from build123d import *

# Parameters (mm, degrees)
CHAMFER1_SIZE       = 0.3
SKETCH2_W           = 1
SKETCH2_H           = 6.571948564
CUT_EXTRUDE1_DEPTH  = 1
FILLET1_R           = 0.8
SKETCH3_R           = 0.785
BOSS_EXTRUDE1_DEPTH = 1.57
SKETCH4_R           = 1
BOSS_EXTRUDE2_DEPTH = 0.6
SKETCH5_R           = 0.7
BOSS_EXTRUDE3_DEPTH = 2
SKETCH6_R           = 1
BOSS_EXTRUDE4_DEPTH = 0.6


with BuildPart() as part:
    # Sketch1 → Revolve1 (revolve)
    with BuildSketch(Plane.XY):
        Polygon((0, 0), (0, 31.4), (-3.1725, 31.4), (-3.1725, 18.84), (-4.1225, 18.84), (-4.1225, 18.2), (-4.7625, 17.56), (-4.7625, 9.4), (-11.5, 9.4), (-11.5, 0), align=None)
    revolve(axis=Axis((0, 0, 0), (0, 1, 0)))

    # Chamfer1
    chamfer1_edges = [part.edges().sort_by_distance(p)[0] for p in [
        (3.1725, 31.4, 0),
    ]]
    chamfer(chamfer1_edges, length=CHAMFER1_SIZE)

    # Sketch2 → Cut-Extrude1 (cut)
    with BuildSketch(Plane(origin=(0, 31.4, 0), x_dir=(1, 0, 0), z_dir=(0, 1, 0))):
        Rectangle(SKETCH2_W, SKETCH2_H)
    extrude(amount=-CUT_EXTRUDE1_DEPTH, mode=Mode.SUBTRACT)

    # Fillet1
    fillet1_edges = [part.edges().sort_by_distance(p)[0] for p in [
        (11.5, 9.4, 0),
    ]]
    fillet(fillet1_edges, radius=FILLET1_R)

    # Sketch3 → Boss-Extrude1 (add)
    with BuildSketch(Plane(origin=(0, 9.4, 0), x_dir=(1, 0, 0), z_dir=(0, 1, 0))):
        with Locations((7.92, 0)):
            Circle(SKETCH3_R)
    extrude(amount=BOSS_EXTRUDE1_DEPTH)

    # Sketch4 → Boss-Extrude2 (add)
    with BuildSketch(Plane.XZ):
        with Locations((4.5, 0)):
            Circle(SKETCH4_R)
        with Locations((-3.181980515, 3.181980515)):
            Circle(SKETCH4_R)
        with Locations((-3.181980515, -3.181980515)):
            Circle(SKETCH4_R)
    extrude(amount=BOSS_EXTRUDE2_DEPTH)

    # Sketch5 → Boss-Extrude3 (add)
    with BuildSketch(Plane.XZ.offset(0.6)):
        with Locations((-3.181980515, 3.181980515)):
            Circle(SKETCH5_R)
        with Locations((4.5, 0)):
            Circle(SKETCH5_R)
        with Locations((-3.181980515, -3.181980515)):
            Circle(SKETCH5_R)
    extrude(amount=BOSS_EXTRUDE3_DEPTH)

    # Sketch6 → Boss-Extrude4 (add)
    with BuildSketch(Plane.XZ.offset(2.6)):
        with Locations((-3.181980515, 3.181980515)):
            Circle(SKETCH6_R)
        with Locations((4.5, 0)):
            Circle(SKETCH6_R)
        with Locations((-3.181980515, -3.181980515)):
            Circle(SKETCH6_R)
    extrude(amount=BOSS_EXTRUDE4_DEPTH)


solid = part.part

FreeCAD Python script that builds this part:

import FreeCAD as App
import Part
import Sketcher
from FreeCAD import Vector
Q = App.Units.Quantity


def edges_at(feature, points):
    """Names of the edges that pass closest to the given points."""
    edges = feature.Shape.Edges
    near = lambda p: min(range(len(edges)), key=lambda i: edges[i].distToShape(Part.Vertex(*p))[0])
    return sorted({f"Edge{near(p) + 1}" for p in points})


def add_polygon(sketch, points):
    """Adds a closed chain of lines whose ends are joined by coincident constraints."""
    first, n = sketch.GeometryCount, len(points)
    for a, b in zip(points, points[1:] + points[:1]):
        sketch.addGeometry(Part.LineSegment(App.Vector(*a, 0), App.Vector(*b, 0)), False)
    for i in range(n):
        sketch.addConstraint(Sketcher.Constraint("Coincident", first + i, 2, first + (i + 1) % n, 1))

doc = App.newDocument("Part")
body = doc.addObject("PartDesign::Body", "Body")

# Sketch on XY plane
sketch1 = doc.addObject("Sketcher::SketchObject", "Sketch")
body.addObject(sketch1)
sketch1.AttachmentSupport = (doc.XY_Plane, [""])
sketch1.MapMode = "FlatFace"
add_polygon(sketch1, [(0, 0), (0, 31.4), (-3.2, 31.4), (-3.2, 18.8), (-4.1, 18.8), (-4.1, 18.2), (-4.8, 17.6), (-4.8, 9.4), (-11.5, 9.4), (-11.5, 0)])  # lines 0-9
sketch1.addConstraint([
    Sketcher.Constraint("Vertical", 0),
    Sketcher.Constraint("Horizontal", 1),
    Sketcher.Constraint("Vertical", 2),
    Sketcher.Constraint("Horizontal", 3),
    Sketcher.Constraint("Vertical", 4),
    Sketcher.Constraint("Vertical", 6),
    Sketcher.Constraint("Horizontal", 7),
    Sketcher.Constraint("Vertical", 8),
    Sketcher.Constraint("Horizontal", 9),
    Sketcher.Constraint("Coincident", 9, 2, -1, 1),
    Sketcher.Constraint("Angle", 5, Q("-135 deg")),
    Sketcher.Constraint("DistanceX", 9, 1, 9, 2, Q("11.5 mm")),
    Sketcher.Constraint("DistanceY", 0, 1, 0, 2, Q("31.4 mm")),
    Sketcher.Constraint("DistanceY", 8, 2, 8, 1, Q("9.4 mm")),
    Sketcher.Constraint("DistanceX", 3, 2, 3, 1, Q("0.95 mm")),
    Sketcher.Constraint("DistanceY", 2, 2, 2, 1, Q("12.56 mm")),
    Sketcher.Constraint("DistanceY", 4, 2, 4, 1, Q("0.64 mm")),
    Sketcher.Constraint("DistanceY", 6, 2, 6, 1, Q("8.16 mm")),
    Sketcher.Constraint("DistanceX", 1, 2, 1, 1, Q("3.1725 mm")),
])
revolution = doc.addObject("PartDesign::Revolution", "Revolution")
body.addObject(revolution)
revolution.Profile = sketch1
revolution.ReferenceAxis = (sketch1, ["V_Axis"])
revolution.Angle = 360
doc.recompute()

chamfer = doc.addObject("PartDesign::Chamfer", "Chamfer")
body.addObject(chamfer)
chamfer.Base = (revolution, edges_at(revolution, [(3.172, 31.4, 0)]))
chamfer.Size = 0.3

# Sketch on XZ plane
sketch2 = doc.addObject("Sketcher::SketchObject", "Sketch001")
body.addObject(sketch2)
sketch2.AttachmentSupport = (doc.XZ_Plane, [""])
sketch2.MapMode = "FlatFace"
sketch2.AttachmentOffset = App.Placement(Vector(0, 0, -31.4), App.Rotation())
add_polygon(sketch2, [(-0.5, -3.3), (-0.5, 3.3), (0.5, 3.3), (0.5, -3.3)])  # lines 0-3
sketch2.addConstraint([
    Sketcher.Constraint("Vertical", 0),
    Sketcher.Constraint("Horizontal", 1),
    Sketcher.Constraint("Vertical", 2),
    Sketcher.Constraint("Horizontal", 3),
    Sketcher.Constraint("Symmetric", 0, 2, 2, 2, -1, 1),
    Sketcher.Constraint("DistanceX", 1, 1, 1, 2, Q("1 mm")),
    Sketcher.Constraint("DistanceY", 0, 1, 0, 2, Q("6.571949 mm")),
])
pocket1 = doc.addObject("PartDesign::Pocket", "Pocket")
body.addObject(pocket1)
pocket1.Profile = sketch2
pocket1.Length = 1
pocket1.Reversed = True
doc.recompute()

fillet = doc.addObject("PartDesign::Fillet", "Fillet")
body.addObject(fillet)
fillet.Base = (pocket1, edges_at(pocket1, [(11.5, 9.4, 0)]))
fillet.Radius = 0.8

# Sketch on XZ plane
sketch3 = doc.addObject("Sketcher::SketchObject", "Sketch002")
body.addObject(sketch3)
sketch3.AttachmentSupport = (doc.XZ_Plane, [""])
sketch3.MapMode = "FlatFace"
sketch3.AttachmentOffset = App.Placement(Vector(0, 0, -9.4), App.Rotation())
sketch3.addGeometry(Part.Circle(Vector(7.9, 0, 0), Vector(0, 0, 1), 0.8), False)
sketch3.addConstraint([
    Sketcher.Constraint("PointOnObject", 0, 3, -1),
    Sketcher.Constraint("Diameter", 0, Q("1.57 mm")),
    Sketcher.Constraint("DistanceX", -1, 1, 0, 3, Q("7.92 mm")),
])
pad1 = doc.addObject("PartDesign::Pad", "Pad")
body.addObject(pad1)
pad1.Profile = sketch3
pad1.Length = 1.57
pad1.Reversed = True

# Sketch on XZ plane
sketch4 = doc.addObject("Sketcher::SketchObject", "Sketch003")
body.addObject(sketch4)
sketch4.AttachmentSupport = (doc.XZ_Plane, [""])
sketch4.MapMode = "FlatFace"
sketch4.addGeometry([
    Part.Circle(Vector(4.5, 0, 0), Vector(0, 0, 1), 1),
    Part.Circle(Vector(-3.2, 3.2, 0), Vector(0, 0, 1), 1),
    Part.Circle(Vector(-3.2, -3.2, 0), Vector(0, 0, 1), 1),
], False)
sketch4.addConstraint([
    Sketcher.Constraint("Equal", 0, 1),
    Sketcher.Constraint("Equal", 1, 2),
    Sketcher.Constraint("Symmetric", 1, 3, 2, 3, -1),
    Sketcher.Constraint("PointOnObject", 0, 3, -1),
    Sketcher.Constraint("Diameter", 0, Q("2 mm")),
    Sketcher.Constraint("DistanceX", -1, 1, 0, 3, Q("4.5 mm")),
    Sketcher.Constraint("DistanceX", 1, 3, -1, 1, Q("3.181981 mm")),
    Sketcher.Constraint("DistanceY", -1, 1, 1, 3, Q("3.181981 mm")),
])
pad2 = doc.addObject("PartDesign::Pad", "Pad001")
body.addObject(pad2)
pad2.Profile = sketch4
pad2.Length = 0.6

# Sketch on XZ plane
sketch5 = doc.addObject("Sketcher::SketchObject", "Sketch004")
body.addObject(sketch5)
sketch5.AttachmentSupport = (doc.XZ_Plane, [""])
sketch5.MapMode = "FlatFace"
sketch5.AttachmentOffset = App.Placement(Vector(0, 0, 0.6), App.Rotation())
sketch5.addGeometry([
    Part.Circle(Vector(-3.2, 3.2, 0), Vector(0, 0, 1), 0.7),
    Part.Circle(Vector(4.5, 0, 0), Vector(0, 0, 1), 0.7),
    Part.Circle(Vector(-3.2, -3.2, 0), Vector(0, 0, 1), 0.7),
], False)
sketch5.addConstraint([
    Sketcher.Constraint("Equal", 0, 1),
    Sketcher.Constraint("Equal", 1, 2),
    Sketcher.Constraint("Symmetric", 0, 3, 2, 3, -1),
    Sketcher.Constraint("PointOnObject", 1, 3, -1),
    Sketcher.Constraint("Diameter", 0, Q("1.4 mm")),
    Sketcher.Constraint("DistanceX", -1, 1, 1, 3, Q("4.5 mm")),
    Sketcher.Constraint("DistanceX", 0, 3, -1, 1, Q("3.181981 mm")),
    Sketcher.Constraint("DistanceY", -1, 1, 0, 3, Q("3.181981 mm")),
])
pad3 = doc.addObject("PartDesign::Pad", "Pad002")
body.addObject(pad3)
pad3.Profile = sketch5
pad3.Length = 2

# Sketch on XZ plane
sketch6 = doc.addObject("Sketcher::SketchObject", "Sketch005")
body.addObject(sketch6)
sketch6.AttachmentSupport = (doc.XZ_Plane, [""])
sketch6.MapMode = "FlatFace"
sketch6.AttachmentOffset = App.Placement(Vector(0, 0, 2.6), App.Rotation())
sketch6.addGeometry([
    Part.Circle(Vector(-3.2, 3.2, 0), Vector(0, 0, 1), 1),
    Part.Circle(Vector(4.5, 0, 0), Vector(0, 0, 1), 1),
    Part.Circle(Vector(-3.2, -3.2, 0), Vector(0, 0, 1), 1),
], False)
sketch6.addConstraint([
    Sketcher.Constraint("Equal", 0, 1),
    Sketcher.Constraint("Equal", 1, 2),
    Sketcher.Constraint("Symmetric", 0, 3, 2, 3, -1),
    Sketcher.Constraint("PointOnObject", 1, 3, -1),
    Sketcher.Constraint("Diameter", 0, Q("2 mm")),
    Sketcher.Constraint("DistanceX", -1, 1, 1, 3, Q("4.5 mm")),
    Sketcher.Constraint("DistanceX", 0, 3, -1, 1, Q("3.181981 mm")),
    Sketcher.Constraint("DistanceY", -1, 1, 0, 3, Q("3.181981 mm")),
])
pad4 = doc.addObject("PartDesign::Pad", "Pad003")
body.addObject(pad4)
pad4.Profile = sketch6
pad4.Length = 0.6

doc.recompute()
